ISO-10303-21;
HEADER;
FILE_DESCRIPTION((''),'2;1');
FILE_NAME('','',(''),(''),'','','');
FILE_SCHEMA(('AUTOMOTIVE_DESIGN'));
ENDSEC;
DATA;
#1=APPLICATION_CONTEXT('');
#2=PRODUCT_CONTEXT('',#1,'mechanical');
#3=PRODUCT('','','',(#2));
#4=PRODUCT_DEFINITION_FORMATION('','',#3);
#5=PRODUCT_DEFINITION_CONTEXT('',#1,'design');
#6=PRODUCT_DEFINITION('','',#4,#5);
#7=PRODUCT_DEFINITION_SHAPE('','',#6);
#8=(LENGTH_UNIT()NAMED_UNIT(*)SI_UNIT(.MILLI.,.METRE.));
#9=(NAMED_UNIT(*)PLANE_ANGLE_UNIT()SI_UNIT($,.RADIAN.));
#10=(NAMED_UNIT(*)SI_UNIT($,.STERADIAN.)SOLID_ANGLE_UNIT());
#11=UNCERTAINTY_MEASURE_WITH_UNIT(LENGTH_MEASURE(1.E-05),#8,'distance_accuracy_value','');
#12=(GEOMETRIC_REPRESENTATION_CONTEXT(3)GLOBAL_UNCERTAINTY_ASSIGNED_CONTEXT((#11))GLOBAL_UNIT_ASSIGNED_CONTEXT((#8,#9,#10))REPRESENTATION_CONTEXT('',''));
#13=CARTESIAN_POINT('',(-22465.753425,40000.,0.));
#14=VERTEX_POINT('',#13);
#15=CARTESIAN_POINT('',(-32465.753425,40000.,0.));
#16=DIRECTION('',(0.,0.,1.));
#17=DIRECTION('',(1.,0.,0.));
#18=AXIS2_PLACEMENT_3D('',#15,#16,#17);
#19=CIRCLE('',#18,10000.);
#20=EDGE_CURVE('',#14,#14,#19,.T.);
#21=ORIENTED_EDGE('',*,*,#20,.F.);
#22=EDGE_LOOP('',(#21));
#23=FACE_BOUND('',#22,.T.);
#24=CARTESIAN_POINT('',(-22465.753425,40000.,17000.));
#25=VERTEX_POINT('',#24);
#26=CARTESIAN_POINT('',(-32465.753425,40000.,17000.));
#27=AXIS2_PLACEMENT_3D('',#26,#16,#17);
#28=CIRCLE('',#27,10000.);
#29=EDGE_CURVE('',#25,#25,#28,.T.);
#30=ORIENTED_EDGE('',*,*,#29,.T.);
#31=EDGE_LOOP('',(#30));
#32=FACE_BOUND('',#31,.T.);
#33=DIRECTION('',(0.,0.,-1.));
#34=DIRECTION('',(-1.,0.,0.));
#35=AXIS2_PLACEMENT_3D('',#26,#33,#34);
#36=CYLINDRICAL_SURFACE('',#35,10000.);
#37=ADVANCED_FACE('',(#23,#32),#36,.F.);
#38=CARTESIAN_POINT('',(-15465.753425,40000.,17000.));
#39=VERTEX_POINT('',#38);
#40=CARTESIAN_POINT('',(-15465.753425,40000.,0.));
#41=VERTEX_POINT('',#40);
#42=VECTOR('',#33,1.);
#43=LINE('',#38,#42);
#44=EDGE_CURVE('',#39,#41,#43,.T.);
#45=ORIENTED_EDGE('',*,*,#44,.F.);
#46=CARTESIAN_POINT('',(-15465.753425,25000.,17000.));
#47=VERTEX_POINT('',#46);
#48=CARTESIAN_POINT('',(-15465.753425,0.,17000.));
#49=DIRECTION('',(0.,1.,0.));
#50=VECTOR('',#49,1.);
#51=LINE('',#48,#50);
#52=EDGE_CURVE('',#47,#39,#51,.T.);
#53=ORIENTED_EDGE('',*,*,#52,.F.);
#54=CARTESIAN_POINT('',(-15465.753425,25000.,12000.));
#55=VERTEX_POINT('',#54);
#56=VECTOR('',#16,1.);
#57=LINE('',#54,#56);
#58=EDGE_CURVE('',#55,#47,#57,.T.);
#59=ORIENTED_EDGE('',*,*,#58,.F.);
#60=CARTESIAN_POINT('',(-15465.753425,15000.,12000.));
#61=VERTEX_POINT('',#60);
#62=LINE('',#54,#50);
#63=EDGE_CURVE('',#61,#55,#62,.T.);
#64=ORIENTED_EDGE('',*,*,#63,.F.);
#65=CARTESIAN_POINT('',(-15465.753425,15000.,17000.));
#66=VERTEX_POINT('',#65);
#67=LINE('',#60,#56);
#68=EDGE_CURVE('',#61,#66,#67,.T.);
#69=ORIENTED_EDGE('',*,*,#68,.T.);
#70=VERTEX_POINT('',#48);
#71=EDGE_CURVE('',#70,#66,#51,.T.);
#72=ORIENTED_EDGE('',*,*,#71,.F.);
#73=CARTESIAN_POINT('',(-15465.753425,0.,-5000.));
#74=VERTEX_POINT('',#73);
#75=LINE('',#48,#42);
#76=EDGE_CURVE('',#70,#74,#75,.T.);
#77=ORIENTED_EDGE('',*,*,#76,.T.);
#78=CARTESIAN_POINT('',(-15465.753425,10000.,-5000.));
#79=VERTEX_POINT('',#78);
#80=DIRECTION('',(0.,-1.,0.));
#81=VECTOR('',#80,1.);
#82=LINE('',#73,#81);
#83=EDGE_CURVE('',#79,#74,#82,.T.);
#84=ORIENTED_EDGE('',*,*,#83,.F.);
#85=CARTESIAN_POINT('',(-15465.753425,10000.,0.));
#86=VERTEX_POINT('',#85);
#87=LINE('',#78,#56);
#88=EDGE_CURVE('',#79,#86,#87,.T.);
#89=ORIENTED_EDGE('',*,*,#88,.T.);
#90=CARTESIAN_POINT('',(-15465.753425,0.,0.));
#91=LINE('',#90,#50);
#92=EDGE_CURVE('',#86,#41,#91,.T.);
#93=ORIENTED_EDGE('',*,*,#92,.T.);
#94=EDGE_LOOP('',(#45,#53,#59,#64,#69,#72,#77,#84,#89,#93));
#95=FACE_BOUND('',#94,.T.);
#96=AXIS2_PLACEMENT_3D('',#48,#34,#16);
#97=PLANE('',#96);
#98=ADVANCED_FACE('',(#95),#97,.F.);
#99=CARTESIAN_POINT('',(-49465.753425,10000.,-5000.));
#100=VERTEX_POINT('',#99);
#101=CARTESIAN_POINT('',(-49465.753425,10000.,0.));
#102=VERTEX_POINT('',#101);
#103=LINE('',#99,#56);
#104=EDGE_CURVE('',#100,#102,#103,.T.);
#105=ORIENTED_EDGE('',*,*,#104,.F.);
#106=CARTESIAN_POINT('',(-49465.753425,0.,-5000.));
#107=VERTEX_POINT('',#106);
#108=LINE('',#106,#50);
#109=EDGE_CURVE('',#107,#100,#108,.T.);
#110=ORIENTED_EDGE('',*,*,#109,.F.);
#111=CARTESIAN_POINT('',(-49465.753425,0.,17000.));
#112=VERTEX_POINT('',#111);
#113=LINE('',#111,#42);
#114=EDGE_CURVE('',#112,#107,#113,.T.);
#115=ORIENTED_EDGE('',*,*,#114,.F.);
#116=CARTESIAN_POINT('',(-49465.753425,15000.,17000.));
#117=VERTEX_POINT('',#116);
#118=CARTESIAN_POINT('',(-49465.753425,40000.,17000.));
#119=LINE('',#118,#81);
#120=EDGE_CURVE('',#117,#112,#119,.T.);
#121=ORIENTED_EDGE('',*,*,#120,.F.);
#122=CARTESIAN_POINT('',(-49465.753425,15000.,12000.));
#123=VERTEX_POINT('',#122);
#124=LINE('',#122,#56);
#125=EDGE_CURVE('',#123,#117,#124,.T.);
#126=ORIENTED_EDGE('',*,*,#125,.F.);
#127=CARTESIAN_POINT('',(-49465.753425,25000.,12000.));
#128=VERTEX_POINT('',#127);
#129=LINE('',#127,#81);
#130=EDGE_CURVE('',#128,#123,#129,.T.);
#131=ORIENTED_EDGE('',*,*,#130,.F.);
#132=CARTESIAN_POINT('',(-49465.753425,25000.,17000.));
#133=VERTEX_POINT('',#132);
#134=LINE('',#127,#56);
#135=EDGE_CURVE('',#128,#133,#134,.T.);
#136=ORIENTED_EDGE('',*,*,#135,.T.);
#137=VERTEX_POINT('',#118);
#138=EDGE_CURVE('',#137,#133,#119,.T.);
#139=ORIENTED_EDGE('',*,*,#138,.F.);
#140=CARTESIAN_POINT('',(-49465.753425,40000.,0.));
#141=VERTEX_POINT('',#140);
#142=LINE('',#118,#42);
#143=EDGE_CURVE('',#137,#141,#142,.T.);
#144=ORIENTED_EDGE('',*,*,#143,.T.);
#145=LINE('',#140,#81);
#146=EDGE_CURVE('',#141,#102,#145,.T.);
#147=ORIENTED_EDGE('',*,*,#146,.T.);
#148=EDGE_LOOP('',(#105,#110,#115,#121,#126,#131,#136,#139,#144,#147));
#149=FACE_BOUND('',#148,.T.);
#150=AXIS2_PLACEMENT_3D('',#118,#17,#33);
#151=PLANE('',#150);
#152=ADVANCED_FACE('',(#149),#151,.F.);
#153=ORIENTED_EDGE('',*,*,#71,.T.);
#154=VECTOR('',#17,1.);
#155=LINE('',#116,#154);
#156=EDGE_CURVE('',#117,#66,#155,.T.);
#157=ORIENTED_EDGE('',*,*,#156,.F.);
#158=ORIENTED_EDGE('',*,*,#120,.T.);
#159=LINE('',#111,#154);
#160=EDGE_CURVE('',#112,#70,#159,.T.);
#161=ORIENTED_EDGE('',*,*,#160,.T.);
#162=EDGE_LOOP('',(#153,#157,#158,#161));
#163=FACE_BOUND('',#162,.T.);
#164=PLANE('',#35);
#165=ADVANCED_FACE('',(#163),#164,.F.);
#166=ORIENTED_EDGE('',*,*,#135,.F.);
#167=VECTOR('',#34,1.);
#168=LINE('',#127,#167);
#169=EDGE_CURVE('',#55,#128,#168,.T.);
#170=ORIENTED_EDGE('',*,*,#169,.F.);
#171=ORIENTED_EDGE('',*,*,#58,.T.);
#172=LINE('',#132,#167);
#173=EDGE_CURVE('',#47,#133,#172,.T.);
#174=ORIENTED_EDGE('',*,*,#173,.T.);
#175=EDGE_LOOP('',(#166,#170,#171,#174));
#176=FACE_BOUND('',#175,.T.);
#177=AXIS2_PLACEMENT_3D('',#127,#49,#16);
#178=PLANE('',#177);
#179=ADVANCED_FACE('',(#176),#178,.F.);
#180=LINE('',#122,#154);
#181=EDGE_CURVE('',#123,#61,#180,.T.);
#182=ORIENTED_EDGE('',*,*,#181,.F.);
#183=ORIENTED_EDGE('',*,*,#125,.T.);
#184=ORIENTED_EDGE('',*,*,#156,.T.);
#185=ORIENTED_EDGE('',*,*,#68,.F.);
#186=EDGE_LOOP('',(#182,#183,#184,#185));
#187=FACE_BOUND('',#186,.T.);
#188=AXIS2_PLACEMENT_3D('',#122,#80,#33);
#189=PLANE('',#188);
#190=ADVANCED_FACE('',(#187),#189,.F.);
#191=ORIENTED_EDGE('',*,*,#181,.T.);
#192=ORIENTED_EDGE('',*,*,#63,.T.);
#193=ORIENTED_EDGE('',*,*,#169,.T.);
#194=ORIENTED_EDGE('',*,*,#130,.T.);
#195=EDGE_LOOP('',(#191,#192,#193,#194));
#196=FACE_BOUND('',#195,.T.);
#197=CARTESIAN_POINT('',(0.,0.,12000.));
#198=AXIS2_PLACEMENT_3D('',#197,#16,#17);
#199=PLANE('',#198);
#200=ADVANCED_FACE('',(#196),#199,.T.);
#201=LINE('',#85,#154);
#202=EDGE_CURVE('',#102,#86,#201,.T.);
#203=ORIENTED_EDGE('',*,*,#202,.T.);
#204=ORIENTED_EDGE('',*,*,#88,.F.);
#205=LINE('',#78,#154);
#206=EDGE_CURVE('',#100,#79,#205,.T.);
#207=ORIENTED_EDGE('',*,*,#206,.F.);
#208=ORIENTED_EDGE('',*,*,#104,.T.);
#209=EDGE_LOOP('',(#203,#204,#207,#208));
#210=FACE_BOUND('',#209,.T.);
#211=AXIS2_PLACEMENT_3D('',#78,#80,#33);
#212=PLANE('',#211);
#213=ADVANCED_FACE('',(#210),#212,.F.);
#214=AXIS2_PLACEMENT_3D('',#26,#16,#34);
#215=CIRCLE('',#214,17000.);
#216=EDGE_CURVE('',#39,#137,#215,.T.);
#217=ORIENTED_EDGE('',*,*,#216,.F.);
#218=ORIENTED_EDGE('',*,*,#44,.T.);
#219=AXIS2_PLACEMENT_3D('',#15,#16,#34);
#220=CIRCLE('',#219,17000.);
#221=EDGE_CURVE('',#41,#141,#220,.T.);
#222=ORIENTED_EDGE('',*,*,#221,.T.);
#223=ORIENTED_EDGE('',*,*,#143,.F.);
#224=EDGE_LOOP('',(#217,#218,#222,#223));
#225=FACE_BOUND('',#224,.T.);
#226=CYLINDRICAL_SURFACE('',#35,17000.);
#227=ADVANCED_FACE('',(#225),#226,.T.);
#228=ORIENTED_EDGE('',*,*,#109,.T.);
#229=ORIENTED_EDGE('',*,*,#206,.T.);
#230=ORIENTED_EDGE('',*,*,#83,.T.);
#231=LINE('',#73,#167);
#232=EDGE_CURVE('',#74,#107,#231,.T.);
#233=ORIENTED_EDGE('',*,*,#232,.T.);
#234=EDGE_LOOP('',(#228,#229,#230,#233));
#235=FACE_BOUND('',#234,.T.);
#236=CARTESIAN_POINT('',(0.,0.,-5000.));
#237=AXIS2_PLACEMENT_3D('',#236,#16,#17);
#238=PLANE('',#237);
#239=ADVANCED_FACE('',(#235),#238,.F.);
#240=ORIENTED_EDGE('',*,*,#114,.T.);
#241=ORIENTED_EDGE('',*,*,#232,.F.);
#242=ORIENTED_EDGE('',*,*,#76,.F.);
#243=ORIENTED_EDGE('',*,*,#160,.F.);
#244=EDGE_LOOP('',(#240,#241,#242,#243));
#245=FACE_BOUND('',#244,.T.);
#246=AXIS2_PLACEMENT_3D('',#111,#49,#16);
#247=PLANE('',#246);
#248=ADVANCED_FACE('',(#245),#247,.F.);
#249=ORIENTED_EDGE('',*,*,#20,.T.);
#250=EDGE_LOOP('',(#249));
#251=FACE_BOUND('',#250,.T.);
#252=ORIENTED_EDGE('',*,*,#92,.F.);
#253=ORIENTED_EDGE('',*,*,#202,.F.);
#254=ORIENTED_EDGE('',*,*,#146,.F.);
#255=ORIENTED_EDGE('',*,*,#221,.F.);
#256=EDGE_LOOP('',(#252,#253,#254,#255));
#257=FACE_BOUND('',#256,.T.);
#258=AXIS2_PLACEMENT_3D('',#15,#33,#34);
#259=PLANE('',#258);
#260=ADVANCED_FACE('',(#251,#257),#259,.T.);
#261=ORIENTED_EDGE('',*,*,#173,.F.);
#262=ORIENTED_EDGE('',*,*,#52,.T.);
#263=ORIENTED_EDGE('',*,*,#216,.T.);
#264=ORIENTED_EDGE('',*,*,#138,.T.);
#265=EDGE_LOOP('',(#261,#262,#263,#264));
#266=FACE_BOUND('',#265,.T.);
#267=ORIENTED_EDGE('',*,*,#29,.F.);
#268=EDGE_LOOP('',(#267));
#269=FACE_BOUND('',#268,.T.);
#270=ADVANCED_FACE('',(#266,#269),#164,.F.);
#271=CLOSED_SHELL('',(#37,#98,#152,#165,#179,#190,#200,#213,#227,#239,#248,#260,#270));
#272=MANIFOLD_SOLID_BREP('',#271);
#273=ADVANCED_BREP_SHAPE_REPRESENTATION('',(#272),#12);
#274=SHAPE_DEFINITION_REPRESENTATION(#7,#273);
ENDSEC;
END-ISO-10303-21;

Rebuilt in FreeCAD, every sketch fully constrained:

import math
import FreeCAD as App
import Part
import Sketcher
Q = App.Units.Quantity

doc = App.newDocument("Part")
body = doc.addObject("PartDesign::Body", "Body")

# Sketch on XY plane
sketch1 = doc.addObject("Sketcher::SketchObject", "Sketch")
body.addObject(sketch1)
sketch1.AttachmentSupport = (doc.XY_Plane, [""])
sketch1.MapMode = "FlatFace"
sketch1.addGeometry([
    Part.LineSegment(App.Vector(-49466, 40000, 0), App.Vector(-49466, 0, 0)),  # 0
    Part.LineSegment(App.Vector(-49466, 0, 0), App.Vector(-15466, 0, 0)),  # 1
    Part.LineSegment(App.Vector(-15466, 0, 0), App.Vector(-15466, 40000, 0)),  # 2
    Part.ArcOfCircle(Part.Circle(App.Vector(-32466, 40000, 0), App.Vector(0, 0, 1), 17000), math.radians(0), math.radians(180)),  # 3
    Part.Circle(App.Vector(-32466, 40000, 0), App.Vector(0, 0, 1), 10000),  # 4
], False)
sketch1.addConstraint([
    Sketcher.Constraint("Coincident", 0, 2, 1, 1),
    Sketcher.Constraint("Coincident", 1, 2, 2, 1),
    Sketcher.Constraint("Coincident", 2, 2, 3, 1),
    Sketcher.Constraint("Coincident", 3, 2, 0, 1),
    Sketcher.Constraint("Vertical", 0),
    Sketcher.Constraint("Horizontal", 1),
    Sketcher.Constraint("Vertical", 2),
    Sketcher.Constraint("Coincident", 4, 3, 3, 3),
    Sketcher.Constraint("PointOnObject", 0, 2, -1),
    Sketcher.Constraint("Horizontal", 4, 3, 2, 2),
    Sketcher.Constraint("Equal", 0, 2),
    Sketcher.Constraint("Diameter", 4, Q("20000 mm")),
    Sketcher.Constraint("Radius", 3, Q("17000 mm")),
    Sketcher.Constraint("DistanceY", 0, 2, 0, 1, Q("40000 mm")),
    Sketcher.Constraint("DistanceX", 3, 3, -1, 1, Q("32465.753425 mm")),
])
pad1 = doc.addObject("PartDesign::Pad", "Pad")
body.addObject(pad1)
pad1.Profile = sketch1
pad1.Length = 17000

# Sketch on XY plane
sketch2 = doc.addObject("Sketcher::SketchObject", "Sketch001")
body.addObject(sketch2)
sketch2.AttachmentSupport = (doc.XY_Plane, [""])
sketch2.MapMode = "FlatFace"
sketch2.AttachmentOffset = App.Placement(App.Vector(0, 0, 17000), App.Rotation())
sketch2.addGeometry([
    Part.LineSegment(App.Vector(-49466, 25000, 0), App.Vector(-49466, 15000, 0)),
    Part.LineSegment(App.Vector(-49466, 15000, 0), App.Vector(-15466, 15000, 0)),
    Part.LineSegment(App.Vector(-15466, 15000, 0), App.Vector(-15466, 25000, 0)),
    Part.LineSegment(App.Vector(-15466, 25000, 0), App.Vector(-49466, 25000, 0)),
], False)
sketch2.addConstraint([
    Sketcher.Constraint("Coincident", 0, 2, 1, 1),
    Sketcher.Constraint("Coincident", 1, 2, 2, 1),
    Sketcher.Constraint("Coincident", 2, 2, 3, 1),
    Sketcher.Constraint("Coincident", 3, 2, 0, 1),
    Sketcher.Constraint("Vertical", 0),
    Sketcher.Constraint("Horizontal", 1),
    Sketcher.Constraint("Vertical", 2),
    Sketcher.Constraint("Horizontal", 3),
    Sketcher.Constraint("DistanceX", 1, 1, 1, 2, Q("34000 mm")),
    Sketcher.Constraint("DistanceY", 0, 2, 0, 1, Q("10000 mm")),
    Sketcher.Constraint("DistanceY", -1, 1, 0, 2, Q("15000 mm")),
    Sketcher.Constraint("DistanceX", 0, 2, -1, 1, Q("49465.753425 mm")),
])
pocket1 = doc.addObject("PartDesign::Pocket", "Pocket")
body.addObject(pocket1)
pocket1.Profile = sketch2
pocket1.Length = 5000

# Sketch on XY plane
sketch3 = doc.addObject("Sketcher::SketchObject", "Sketch002")
body.addObject(sketch3)
sketch3.AttachmentSupport = (doc.XY_Plane, [""])
sketch3.MapMode = "FlatFace"
sketch3.addGeometry([
    Part.LineSegment(App.Vector(-15466, 10000, 0), App.Vector(-15466, 0, 0)),
    Part.LineSegment(App.Vector(-15466, 0, 0), App.Vector(-49466, 0, 0)),
    Part.LineSegment(App.Vector(-49466, 0, 0), App.Vector(-49466, 10000, 0)),
    Part.LineSegment(App.Vector(-49466, 10000, 0), App.Vector(-15466, 10000, 0)),
], False)
sketch3.addConstraint([
    Sketcher.Constraint("Coincident", 0, 2, 1, 1),
    Sketcher.Constraint("Coincident", 1, 2, 2, 1),
    Sketcher.Constraint("Coincident", 2, 2, 3, 1),
    Sketcher.Constraint("Coincident", 3, 2, 0, 1),
    Sketcher.Constraint("Vertical", 0),
    Sketcher.Constraint("Horizontal", 1),
    Sketcher.Constraint("Vertical", 2),
    Sketcher.Constraint("Horizontal", 3),
    Sketcher.Constraint("PointOnObject", 0, 2, -1),
    Sketcher.Constraint("DistanceX", 1, 2, 1, 1, Q("34000 mm")),
    Sketcher.Constraint("DistanceY", 0, 2, 0, 1, Q("10000 mm")),
    Sketcher.Constraint("DistanceX", 0, 2, -1, 1, Q("15465.753425 mm")),
])
pad2 = doc.addObject("PartDesign::Pad", "Pad001")
body.addObject(pad2)
pad2.Profile = sketch3
pad2.Length = 5000
pad2.Reversed = True

doc.recompute()
